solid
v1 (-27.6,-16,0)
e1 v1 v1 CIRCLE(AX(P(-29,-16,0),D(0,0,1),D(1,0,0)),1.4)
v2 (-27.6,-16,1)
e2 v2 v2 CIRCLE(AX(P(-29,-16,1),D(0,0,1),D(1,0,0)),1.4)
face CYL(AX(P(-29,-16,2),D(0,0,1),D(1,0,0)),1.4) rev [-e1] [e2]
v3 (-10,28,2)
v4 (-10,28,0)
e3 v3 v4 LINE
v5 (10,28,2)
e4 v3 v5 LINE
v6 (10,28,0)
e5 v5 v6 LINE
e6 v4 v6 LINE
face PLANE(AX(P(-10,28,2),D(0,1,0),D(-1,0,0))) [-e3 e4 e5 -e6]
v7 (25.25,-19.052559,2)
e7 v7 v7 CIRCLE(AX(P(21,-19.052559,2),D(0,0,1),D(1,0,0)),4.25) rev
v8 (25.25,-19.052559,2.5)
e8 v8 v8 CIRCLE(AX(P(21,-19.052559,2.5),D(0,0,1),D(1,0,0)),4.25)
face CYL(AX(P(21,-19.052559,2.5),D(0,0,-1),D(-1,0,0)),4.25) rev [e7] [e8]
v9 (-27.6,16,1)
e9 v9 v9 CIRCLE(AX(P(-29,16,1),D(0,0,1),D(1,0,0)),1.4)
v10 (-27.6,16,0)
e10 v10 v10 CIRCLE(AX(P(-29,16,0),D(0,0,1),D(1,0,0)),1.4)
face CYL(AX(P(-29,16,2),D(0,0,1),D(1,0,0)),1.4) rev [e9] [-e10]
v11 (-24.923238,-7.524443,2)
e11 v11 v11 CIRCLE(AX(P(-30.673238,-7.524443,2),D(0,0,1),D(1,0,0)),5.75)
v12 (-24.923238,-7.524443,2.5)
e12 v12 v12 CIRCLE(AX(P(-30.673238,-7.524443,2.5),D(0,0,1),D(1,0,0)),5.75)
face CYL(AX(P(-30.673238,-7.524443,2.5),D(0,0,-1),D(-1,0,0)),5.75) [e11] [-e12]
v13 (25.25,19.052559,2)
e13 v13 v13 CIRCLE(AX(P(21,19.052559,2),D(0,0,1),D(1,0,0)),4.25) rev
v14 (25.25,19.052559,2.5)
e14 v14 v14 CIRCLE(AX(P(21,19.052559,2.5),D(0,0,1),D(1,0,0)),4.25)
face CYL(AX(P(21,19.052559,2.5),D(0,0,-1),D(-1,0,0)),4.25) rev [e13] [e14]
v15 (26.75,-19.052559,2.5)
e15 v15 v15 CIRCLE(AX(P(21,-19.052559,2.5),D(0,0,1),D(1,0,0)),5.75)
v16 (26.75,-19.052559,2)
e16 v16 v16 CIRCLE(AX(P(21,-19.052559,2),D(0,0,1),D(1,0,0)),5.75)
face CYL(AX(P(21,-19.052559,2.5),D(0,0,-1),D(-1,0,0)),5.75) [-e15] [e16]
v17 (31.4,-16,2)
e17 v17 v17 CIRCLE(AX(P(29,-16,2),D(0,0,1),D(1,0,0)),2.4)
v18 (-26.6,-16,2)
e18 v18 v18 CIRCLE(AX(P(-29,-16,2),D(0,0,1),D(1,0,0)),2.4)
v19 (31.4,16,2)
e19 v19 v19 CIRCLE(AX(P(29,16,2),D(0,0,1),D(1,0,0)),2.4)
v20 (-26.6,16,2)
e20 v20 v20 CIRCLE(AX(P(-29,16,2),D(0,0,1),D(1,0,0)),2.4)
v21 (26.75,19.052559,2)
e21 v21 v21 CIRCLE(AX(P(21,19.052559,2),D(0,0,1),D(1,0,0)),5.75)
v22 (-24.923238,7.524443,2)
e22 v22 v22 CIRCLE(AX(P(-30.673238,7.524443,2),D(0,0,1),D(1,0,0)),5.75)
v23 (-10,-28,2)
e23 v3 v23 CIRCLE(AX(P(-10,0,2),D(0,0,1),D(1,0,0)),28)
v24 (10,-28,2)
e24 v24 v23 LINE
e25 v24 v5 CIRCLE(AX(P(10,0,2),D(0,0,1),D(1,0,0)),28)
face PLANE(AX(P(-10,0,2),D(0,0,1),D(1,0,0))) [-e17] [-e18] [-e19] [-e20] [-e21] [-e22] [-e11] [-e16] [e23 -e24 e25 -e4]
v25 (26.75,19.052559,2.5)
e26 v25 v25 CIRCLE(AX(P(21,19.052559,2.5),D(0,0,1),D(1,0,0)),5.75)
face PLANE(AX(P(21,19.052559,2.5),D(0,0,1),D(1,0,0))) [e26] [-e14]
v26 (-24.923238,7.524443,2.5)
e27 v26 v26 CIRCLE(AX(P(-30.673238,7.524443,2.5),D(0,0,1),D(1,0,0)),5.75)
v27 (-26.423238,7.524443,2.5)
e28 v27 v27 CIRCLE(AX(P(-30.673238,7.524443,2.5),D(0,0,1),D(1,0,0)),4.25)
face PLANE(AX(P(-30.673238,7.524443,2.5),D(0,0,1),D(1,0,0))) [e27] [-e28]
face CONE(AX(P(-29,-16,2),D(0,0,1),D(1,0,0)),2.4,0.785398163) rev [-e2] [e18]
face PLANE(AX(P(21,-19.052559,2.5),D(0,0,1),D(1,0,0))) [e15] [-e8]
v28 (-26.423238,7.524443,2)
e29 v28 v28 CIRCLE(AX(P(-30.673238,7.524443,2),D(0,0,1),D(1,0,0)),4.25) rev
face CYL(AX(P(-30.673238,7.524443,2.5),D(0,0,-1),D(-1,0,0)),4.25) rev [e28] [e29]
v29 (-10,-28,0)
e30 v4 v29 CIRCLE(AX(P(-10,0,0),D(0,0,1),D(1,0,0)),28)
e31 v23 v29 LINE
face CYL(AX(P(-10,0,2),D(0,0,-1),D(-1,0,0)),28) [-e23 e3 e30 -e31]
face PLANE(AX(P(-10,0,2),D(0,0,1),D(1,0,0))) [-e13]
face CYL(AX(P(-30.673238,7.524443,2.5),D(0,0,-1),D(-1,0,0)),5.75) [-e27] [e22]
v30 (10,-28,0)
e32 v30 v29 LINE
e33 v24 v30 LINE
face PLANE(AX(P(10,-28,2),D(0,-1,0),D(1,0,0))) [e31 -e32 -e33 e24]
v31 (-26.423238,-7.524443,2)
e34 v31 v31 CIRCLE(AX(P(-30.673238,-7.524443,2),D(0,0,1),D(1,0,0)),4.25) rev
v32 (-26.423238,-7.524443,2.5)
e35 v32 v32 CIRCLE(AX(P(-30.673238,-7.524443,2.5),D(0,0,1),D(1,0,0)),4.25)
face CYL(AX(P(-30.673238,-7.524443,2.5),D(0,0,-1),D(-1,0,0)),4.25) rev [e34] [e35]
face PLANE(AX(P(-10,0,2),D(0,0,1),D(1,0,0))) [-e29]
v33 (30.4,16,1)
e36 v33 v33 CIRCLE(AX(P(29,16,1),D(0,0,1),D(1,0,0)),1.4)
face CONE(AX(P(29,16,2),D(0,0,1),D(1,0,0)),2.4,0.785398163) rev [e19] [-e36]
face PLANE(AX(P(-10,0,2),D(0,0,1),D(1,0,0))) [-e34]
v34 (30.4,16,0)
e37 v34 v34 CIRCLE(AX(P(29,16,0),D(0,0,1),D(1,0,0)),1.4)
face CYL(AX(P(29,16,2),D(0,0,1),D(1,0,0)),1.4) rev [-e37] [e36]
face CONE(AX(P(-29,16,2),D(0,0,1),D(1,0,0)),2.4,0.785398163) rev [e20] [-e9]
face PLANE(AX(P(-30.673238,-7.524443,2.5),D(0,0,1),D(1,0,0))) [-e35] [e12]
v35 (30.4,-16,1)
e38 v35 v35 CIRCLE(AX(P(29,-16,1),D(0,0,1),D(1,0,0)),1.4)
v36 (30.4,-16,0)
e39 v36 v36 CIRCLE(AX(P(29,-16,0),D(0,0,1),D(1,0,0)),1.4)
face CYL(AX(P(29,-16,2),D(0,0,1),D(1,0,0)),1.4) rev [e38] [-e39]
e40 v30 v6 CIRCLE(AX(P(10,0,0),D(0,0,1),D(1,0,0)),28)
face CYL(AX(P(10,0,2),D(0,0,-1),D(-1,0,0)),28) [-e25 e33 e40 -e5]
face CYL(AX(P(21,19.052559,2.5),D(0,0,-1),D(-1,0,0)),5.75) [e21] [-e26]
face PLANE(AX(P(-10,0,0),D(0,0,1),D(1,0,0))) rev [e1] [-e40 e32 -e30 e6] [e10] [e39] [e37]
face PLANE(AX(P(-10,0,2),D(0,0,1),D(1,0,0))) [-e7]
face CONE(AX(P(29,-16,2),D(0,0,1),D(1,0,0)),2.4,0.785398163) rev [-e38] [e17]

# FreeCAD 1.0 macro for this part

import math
import FreeCAD as App
import Part
import Sketcher
from FreeCAD import Vector
Q = App.Units.Quantity

doc = App.newDocument("Part")
params = doc.addObject("Spreadsheet::Sheet", "Params")
for row, (alias, value) in enumerate([
    ("sketch1_radius", "28 mm"),
    ("sketch1_width", "20 mm"),
    ("pad1_length", "2 mm"),
    ("sketch2_diameter", "2.8 mm"),
    ("hole_diameter", "2.8 mm"),
    ("hole_depth", "10.1 mm"),
    ("hole_csink_diameter", "4.8 mm"),
    ("sketch3_diameter", "11.5 mm"),
    ("sketch3_diameter2", "8.5 mm"),
    ("pad2_length", "0.5 mm"),
], start=1):
    params.set(f"A{row}", alias)
    params.set(f"B{row}", "=" + value)
    params.setAlias(f"B{row}", alias)

body = doc.addObject("PartDesign::Body", "Body")

# Sketch on XY plane
sketch1 = body.newObject("Sketcher::SketchObject", "Sketch")
sketch1.AttachmentSupport = (doc.getObject("XY_Plane"), [""])
sketch1.MapMode = "FlatFace"
sketch1.addGeometry(Part.LineSegment(Vector(-10, -28, 0), Vector(10, -28, 0)), False)
sketch1.addGeometry(Part.ArcOfCircle(Part.Circle(Vector(10, 0, 0), Vector(0, 0, 1), 28), math.radians(-90), math.radians(90)), False)
sketch1.addGeometry(Part.LineSegment(Vector(10, 28, 0), Vector(-10, 28, 0)), False)
sketch1.addGeometry(Part.ArcOfCircle(Part.Circle(Vector(-10, 0, 0), Vector(0, 0, 1), 28), math.radians(90), math.radians(270)), False)
sketch1.addConstraint(Sketcher.Constraint("Tangent", 0, 2, 1, 1))
sketch1.addConstraint(Sketcher.Constraint("Tangent", 1, 2, 2, 1))
sketch1.addConstraint(Sketcher.Constraint("Tangent", 2, 2, 3, 1))
sketch1.addConstraint(Sketcher.Constraint("Tangent", 3, 2, 0, 1))
sketch1.addConstraint(Sketcher.Constraint("Horizontal", 0))
sketch1.addConstraint(Sketcher.Constraint("Horizontal", 2))
sketch1.addConstraint(Sketcher.Constraint("Symmetric", 1, 3, 3, 3, -1, 1))
sketch1.addConstraint(Sketcher.Constraint("Radius", 1, Q("28 mm")))
sketch1.addConstraint(Sketcher.Constraint("DistanceX", 0, 1, 0, 2, Q("20 mm")))
sketch1.setExpression("Constraints[7]", "Params.sketch1_radius")
sketch1.setExpression("Constraints[8]", "Params.sketch1_width")
pad1 = body.newObject("PartDesign::Pad", "Pad")
pad1.Profile = sketch1
pad1.setExpression("Length", "Params.pad1_length")

# Sketch on XY plane
sketch2 = body.newObject("Sketcher::SketchObject", "Sketch001")
sketch2.AttachmentSupport = (doc.getObject("XY_Plane"), [""])
sketch2.MapMode = "FlatFace"
sketch2.AttachmentOffset = App.Placement(Vector(0, 0, 2), App.Rotation())
sketch2.addGeometry(Part.Circle(Vector(-29, 16, 0), Vector(0, 0, 1), 1.4), False)
sketch2.addGeometry(Part.Circle(Vector(-29, -16, 0), Vector(0, 0, 1), 1.4), False)
sketch2.addGeometry(Part.Circle(Vector(29, 16, 0), Vector(0, 0, 1), 1.4), False)
sketch2.addGeometry(Part.Circle(Vector(29, -16, 0), Vector(0, 0, 1), 1.4), False)
sketch2.addConstraint(Sketcher.Constraint("Equal", 0, 1))
sketch2.addConstraint(Sketcher.Constraint("Equal", 1, 2))
sketch2.addConstraint(Sketcher.Constraint("Equal", 2, 3))
sketch2.addConstraint(Sketcher.Constraint("Symmetric", 1, 3, 2, 3, -1, 1))
sketch2.addConstraint(Sketcher.Constraint("Symmetric", 0, 3, 3, 3, -1, 1))
sketch2.addConstraint(Sketcher.Constraint("Symmetric", 0, 3, 2, 3, -2))
sketch2.addConstraint(Sketcher.Constraint("Diameter", 0, Q("2.8 mm")))
sketch2.addConstraint(Sketcher.Constraint("DistanceX", 0, 3, -1, 1, Q("29 mm")))
sketch2.addConstraint(Sketcher.Constraint("DistanceY", -1, 1, 0, 3, Q("16 mm")))
sketch2.setExpression("Constraints[6]", "Params.sketch2_diameter")
doc.recompute()
hole = body.newObject("PartDesign::Hole", "Hole")
hole.Profile = sketch2
hole.ThreadType = "None"
hole.setExpression("Diameter", "Params.hole_diameter")
hole.DepthType = "Dimension"
hole.setExpression("Depth", "Params.hole_depth")
hole.DrillPoint = "Angled"
hole.DrillPointAngle = 118
hole.HoleCutType = "Countersink"
hole.setExpression("HoleCutDiameter", "Params.hole_csink_diameter")
hole.HoleCutCountersinkAngle = 90

# Sketch on XY plane
sketch3 = body.newObject("Sketcher::SketchObject", "Sketch002")
sketch3.AttachmentSupport = (doc.getObject("XY_Plane"), [""])
sketch3.MapMode = "FlatFace"
sketch3.AttachmentOffset = App.Placement(Vector(0, 0, 2), App.Rotation())
sketch3.addGeometry(Part.Circle(Vector(-30.7, 7.5, 0), Vector(0, 0, 1), 5.8), False)
sketch3.addGeometry(Part.Circle(Vector(-30.7, 7.5, 0), Vector(0, 0, 1), 4.2), False)
sketch3.addGeometry(Part.Circle(Vector(-30.7, -7.5, 0), Vector(0, 0, 1), 5.8), False)
sketch3.addGeometry(Part.Circle(Vector(-30.7, -7.5, 0), Vector(0, 0, 1), 4.2), False)
sketch3.addGeometry(Part.Circle(Vector(21, -19.1, 0), Vector(0, 0, 1), 5.8), False)
sketch3.addGeometry(Part.Circle(Vector(21, -19.1, 0), Vector(0, 0, 1), 4.2), False)
sketch3.addGeometry(Part.Circle(Vector(21, 19.1, 0), Vector(0, 0, 1), 5.8), False)
sketch3.addGeometry(Part.Circle(Vector(21, 19.1, 0), Vector(0, 0, 1), 4.2), False)
sketch3.addConstraint(Sketcher.Constraint("Coincident", 1, 3, 0, 3))
sketch3.addConstraint(Sketcher.Constraint("Coincident", 3, 3, 2, 3))
sketch3.addConstraint(Sketcher.Constraint("Coincident", 5, 3, 4, 3))
sketch3.addConstraint(Sketcher.Constraint("Coincident", 7, 3, 6, 3))
sketch3.addConstraint(Sketcher.Constraint("Equal", 0, 2))
sketch3.addConstraint(Sketcher.Constraint("Equal", 1, 3))
sketch3.addConstraint(Sketcher.Constraint("Equal", 2, 4))
sketch3.addConstraint(Sketcher.Constraint("Equal", 3, 5))
sketch3.addConstraint(Sketcher.Constraint("Equal", 4, 6))
sketch3.addConstraint(Sketcher.Constraint("Equal", 5, 7))
sketch3.addConstraint(Sketcher.Constraint("Symmetric", 0, 3, 2, 3, -1))
sketch3.addConstraint(Sketcher.Constraint("Symmetric", 4, 3, 6, 3, -1))
sketch3.addConstraint(Sketcher.Constraint("Diameter", 0, Q("11.5 mm")))
sketch3.addConstraint(Sketcher.Constraint("Diameter", 1, Q("8.5 mm")))
sketch3.addConstraint(Sketcher.Constraint("DistanceX", -1, 1, 4, 3, Q("21 mm")))
sketch3.addConstraint(Sketcher.Constraint("DistanceY", 4, 3, -1, 1, Q("19.052559 mm")))
sketch3.addConstraint(Sketcher.Constraint("DistanceX", 0, 3, -1, 1, Q("30.673238 mm")))
sketch3.addConstraint(Sketcher.Constraint("DistanceY", -1, 1, 0, 3, Q("7.524443 mm")))
sketch3.setExpression("Constraints[12]", "Params.sketch3_diameter")
sketch3.setExpression("Constraints[13]", "Params.sketch3_diameter2")
pad2 = body.newObject("PartDesign::Pad", "Pad001")
pad2.Profile = sketch3
pad2.setExpression("Length", "Params.pad2_length")

doc.recompute()
